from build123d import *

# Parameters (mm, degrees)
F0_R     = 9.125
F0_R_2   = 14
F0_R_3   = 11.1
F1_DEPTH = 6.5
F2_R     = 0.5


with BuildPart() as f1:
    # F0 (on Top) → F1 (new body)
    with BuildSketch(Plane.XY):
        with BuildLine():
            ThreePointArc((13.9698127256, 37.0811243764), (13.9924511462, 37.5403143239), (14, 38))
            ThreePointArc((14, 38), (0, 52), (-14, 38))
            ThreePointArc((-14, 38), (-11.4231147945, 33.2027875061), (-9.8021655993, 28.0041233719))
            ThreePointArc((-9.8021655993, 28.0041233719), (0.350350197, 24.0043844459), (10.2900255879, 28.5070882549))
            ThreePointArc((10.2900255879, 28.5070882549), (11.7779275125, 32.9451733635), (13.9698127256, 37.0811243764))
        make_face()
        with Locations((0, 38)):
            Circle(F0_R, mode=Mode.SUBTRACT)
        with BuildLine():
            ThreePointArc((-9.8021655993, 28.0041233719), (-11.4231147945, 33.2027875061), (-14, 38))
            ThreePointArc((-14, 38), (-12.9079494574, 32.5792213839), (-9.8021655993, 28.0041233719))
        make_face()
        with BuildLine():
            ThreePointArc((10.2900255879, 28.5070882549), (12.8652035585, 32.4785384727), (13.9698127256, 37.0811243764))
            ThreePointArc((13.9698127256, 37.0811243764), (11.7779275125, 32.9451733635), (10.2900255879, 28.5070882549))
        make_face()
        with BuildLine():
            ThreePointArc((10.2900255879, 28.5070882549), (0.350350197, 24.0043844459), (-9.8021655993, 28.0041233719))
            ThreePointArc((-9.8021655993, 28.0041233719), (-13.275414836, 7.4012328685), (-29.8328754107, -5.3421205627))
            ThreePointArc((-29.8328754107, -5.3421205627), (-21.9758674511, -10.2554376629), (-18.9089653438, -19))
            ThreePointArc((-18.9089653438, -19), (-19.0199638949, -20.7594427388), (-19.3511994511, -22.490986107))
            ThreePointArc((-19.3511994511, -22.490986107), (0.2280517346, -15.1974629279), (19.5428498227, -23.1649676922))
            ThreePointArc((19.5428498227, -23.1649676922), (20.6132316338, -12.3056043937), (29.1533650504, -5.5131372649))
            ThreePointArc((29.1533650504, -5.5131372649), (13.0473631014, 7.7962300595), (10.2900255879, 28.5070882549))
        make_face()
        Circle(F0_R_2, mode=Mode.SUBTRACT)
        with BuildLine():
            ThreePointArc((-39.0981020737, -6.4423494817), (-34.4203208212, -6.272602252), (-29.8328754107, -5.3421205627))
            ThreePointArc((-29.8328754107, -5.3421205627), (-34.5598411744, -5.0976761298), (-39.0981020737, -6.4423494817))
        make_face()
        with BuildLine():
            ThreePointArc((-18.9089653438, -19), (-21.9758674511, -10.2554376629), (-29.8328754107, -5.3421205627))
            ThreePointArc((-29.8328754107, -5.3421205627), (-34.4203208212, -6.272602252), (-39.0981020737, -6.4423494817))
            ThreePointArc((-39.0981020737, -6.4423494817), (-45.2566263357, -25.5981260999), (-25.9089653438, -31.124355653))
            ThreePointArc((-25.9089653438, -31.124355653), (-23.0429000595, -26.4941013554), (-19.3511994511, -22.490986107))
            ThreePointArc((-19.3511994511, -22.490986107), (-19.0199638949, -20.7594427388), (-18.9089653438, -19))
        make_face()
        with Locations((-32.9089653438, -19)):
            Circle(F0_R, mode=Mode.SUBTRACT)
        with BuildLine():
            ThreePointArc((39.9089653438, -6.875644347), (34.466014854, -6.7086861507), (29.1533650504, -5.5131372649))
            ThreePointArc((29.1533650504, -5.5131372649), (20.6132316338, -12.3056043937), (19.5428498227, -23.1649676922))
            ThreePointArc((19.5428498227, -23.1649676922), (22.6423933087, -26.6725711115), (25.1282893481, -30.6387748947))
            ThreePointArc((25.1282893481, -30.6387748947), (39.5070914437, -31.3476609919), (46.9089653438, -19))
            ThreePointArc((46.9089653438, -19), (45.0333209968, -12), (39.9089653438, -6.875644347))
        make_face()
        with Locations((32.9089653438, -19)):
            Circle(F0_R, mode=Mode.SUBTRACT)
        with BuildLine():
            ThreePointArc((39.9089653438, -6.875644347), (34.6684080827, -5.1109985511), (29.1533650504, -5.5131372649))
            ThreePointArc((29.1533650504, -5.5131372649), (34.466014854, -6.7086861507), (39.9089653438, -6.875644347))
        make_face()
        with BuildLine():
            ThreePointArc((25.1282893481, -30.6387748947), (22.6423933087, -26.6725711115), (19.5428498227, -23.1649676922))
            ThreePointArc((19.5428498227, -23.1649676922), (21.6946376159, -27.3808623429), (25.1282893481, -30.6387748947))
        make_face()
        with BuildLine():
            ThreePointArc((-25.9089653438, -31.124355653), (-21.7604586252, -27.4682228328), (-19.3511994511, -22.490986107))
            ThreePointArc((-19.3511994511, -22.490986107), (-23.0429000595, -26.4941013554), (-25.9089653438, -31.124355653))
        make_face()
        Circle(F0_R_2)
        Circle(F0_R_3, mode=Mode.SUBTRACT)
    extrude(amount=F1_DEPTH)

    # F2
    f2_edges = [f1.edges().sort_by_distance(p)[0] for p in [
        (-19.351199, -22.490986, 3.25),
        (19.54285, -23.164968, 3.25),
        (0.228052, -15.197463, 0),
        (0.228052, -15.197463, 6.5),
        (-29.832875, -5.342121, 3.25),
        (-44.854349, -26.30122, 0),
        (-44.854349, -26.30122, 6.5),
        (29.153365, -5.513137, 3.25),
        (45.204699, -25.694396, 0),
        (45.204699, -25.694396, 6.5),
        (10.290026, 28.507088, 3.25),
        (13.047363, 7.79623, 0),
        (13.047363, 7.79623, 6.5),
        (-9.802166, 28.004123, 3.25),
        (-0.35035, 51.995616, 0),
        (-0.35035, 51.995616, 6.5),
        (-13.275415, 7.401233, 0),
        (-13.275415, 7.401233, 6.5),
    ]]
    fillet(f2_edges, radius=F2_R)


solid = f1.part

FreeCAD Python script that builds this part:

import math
import FreeCAD as App
import Part
import Sketcher

V = App.Vector


def edges_at(feature, points):
    """Names of the edges that pass closest to the given points."""
    edges = feature.Shape.Edges
    near = lambda p: min(range(len(edges)), key=lambda i: edges[i].distToShape(Part.Vertex(*p))[0])
    return sorted({f"Edge{near(p) + 1}" for p in points})

doc = App.newDocument("Part")
params = doc.addObject("Spreadsheet::Sheet", "Params")
for row, (alias, value) in enumerate([
    ("sketch1_radius", "14 mm"),
    ("sketch1_diameter", "22.2 mm"),
    ("sketch1_diameter2", "18.25 mm"),
    ("pad1_length", "6.5 mm"),
    ("fillet_radius", "0.5 mm"),
], start=1):
    params.set(f"A{row}", alias)
    params.set(f"B{row}", "=" + value)
    params.setAlias(f"B{row}", alias)

body = doc.addObject("PartDesign::Body", "Body")

sketch1 = doc.addObject("Sketcher::SketchObject", "Sketch")
body.addObject(sketch1)
sketch1.AttachmentSupport = (doc.XY_Plane, [""])
sketch1.MapMode = "FlatFace"
sketch1.addGeometry(Part.ArcOfCircle(Part.Circle(V(0, 38, 0), V(0, 0, 1), 14), math.radians(-3.76), math.radians(0)), False)
sketch1.addGeometry(Part.ArcOfCircle(Part.Circle(V(0, 38, 0), V(0, 0, 1), 14), math.radians(0), math.radians(180)), False)
sketch1.addGeometry(Part.ArcOfCircle(Part.Circle(V(0, 38, 0), V(0, 0, 1), 14), math.radians(180), math.radians(226)), False)
sketch1.addGeometry(Part.ArcOfCircle(Part.Circle(V(-37.8, 22.1, 0), V(0, 0, 1), 28.6), math.radians(-74), math.radians(12)), False)
sketch1.addGeometry(Part.ArcOfCircle(Part.Circle(V(-32.9, -19, 0), V(0, 0, 1), 14), math.radians(77), math.radians(116)), False)
sketch1.addGeometry(Part.ArcOfCircle(Part.Circle(V(-32.9, -19, 0), V(0, 0, 1), 14), math.radians(116), math.radians(300)), False)
sketch1.addGeometry(Part.ArcOfCircle(Part.Circle(V(-32.9, -19, 0), V(0, 0, 1), 14), math.radians(-60), math.radians(-14)), False)
sketch1.addGeometry(Part.ArcOfCircle(Part.Circle(V(-0.3, -43.8, 0), V(0, 0, 1), 28.6), math.radians(46), math.radians(132)), False)
sketch1.addGeometry(Part.ArcOfCircle(Part.Circle(V(32.9, -19, 0), V(0, 0, 1), 14), math.radians(-163), math.radians(0)), False)
sketch1.addGeometry(Part.ArcOfCircle(Part.Circle(V(32.9, -19, 0), V(0, 0, 1), 14), math.radians(0), math.radians(60)), False)
sketch1.addGeometry(Part.ArcOfCircle(Part.Circle(V(32.9, -19, 0), V(0, 0, 1), 14), math.radians(60), math.radians(106)), False)
sketch1.addGeometry(Part.ArcOfCircle(Part.Circle(V(38.1, 21.7, 0), V(0, 0, 1), 28.6), math.radians(166), math.radians(252)), False)
sketch1.addGeometry(Part.ArcOfCircle(Part.Circle(V(0, 38, 0), V(0, 0, 1), 14), math.radians(-43), math.radians(-4)), False)
sketch1.addGeometry(Part.Circle(V(-32.9, -19, 0), V(0, 0, 1), 9.1), False)
sketch1.addGeometry(Part.Circle(V(0, 0, 0), V(0, 0, 1), 11.1), False)
sketch1.addGeometry(Part.Circle(V(32.9, -19, 0), V(0, 0, 1), 9.1), False)
sketch1.addGeometry(Part.Circle(V(0, 38, 0), V(0, 0, 1), 9.1), False)
sketch1.addConstraint(Sketcher.Constraint("Tangent", 0, 2, 1, 1))
sketch1.addConstraint(Sketcher.Constraint("Tangent", 1, 2, 2, 1))
sketch1.addConstraint(Sketcher.Constraint("Coincident", 2, 2, 3, 2))
sketch1.addConstraint(Sketcher.Constraint("Coincident", 3, 1, 4, 1))
sketch1.addConstraint(Sketcher.Constraint("Tangent", 4, 2, 5, 1))
sketch1.addConstraint(Sketcher.Constraint("Tangent", 5, 2, 6, 1))
sketch1.addConstraint(Sketcher.Constraint("Coincident", 6, 2, 7, 2))
sketch1.addConstraint(Sketcher.Constraint("Coincident", 7, 1, 8, 1))
sketch1.addConstraint(Sketcher.Constraint("Tangent", 8, 2, 9, 1))
sketch1.addConstraint(Sketcher.Constraint("Tangent", 9, 2, 10, 1))
sketch1.addConstraint(Sketcher.Constraint("Coincident", 10, 2, 11, 2))
sketch1.addConstraint(Sketcher.Constraint("Coincident", 11, 1, 12, 1))
sketch1.addConstraint(Sketcher.Constraint("Tangent", 12, 2, 0, 1))
sketch1.addConstraint(Sketcher.Constraint("Coincident", 14, 3, -1, 1))
sketch1.addConstraint(Sketcher.Constraint("Coincident", 6, 3, 4, 3))
sketch1.addConstraint(Sketcher.Constraint("Coincident", 10, 3, 8, 3))
sketch1.addConstraint(Sketcher.Constraint("Coincident", 13, 3, 4, 3))
sketch1.addConstraint(Sketcher.Constraint("Coincident", 15, 3, 8, 3))
sketch1.addConstraint(Sketcher.Constraint("Coincident", 16, 3, 0, 3))
sketch1.addConstraint(Sketcher.Constraint("Equal", 0, 1))
sketch1.addConstraint(Sketcher.Constraint("Equal", 1, 2))
sketch1.addConstraint(Sketcher.Constraint("Equal", 2, 4))
sketch1.addConstraint(Sketcher.Constraint("Equal", 3, 7))
sketch1.addConstraint(Sketcher.Constraint("Equal", 6, 8))
sketch1.addConstraint(Sketcher.Constraint("Equal", 7, 11))
sketch1.addConstraint(Sketcher.Constraint("Equal", 10, 12))
sketch1.addConstraint(Sketcher.Constraint("Equal", 13, 15))
sketch1.addConstraint(Sketcher.Constraint("Equal", 15, 16))
sketch1.addConstraint(Sketcher.Constraint("Symmetric", 4, 3, 8, 3, -2))
sketch1.addConstraint(Sketcher.Constraint("Symmetric", 0, 2, 1, 2, -2))
sketch1.addConstraint(Sketcher.Constraint("Horizontal", 16, 3, 0, 2))
sketch1.addConstraint(Sketcher.Constraint("Horizontal", 15, 3, 8, 2))
sketch1.addConstraint(Sketcher.Constraint("Radius", 0, 14.0))
sketch1.addConstraint(Sketcher.Constraint("Diameter", 14, 22.2))
sketch1.addConstraint(Sketcher.Constraint("Diameter", 13, 18.25))
sketch1.addConstraint(Sketcher.Constraint("DistanceY", -1, 1, 0, 3, 38.0))
sketch1.addConstraint(Sketcher.Constraint("DistanceY", 4, 3, -1, 1, 19.0))
sketch1.addConstraint(Sketcher.Constraint("DistanceX", 4, 3, 5, 2, 7.0))
sketch1.addConstraint(Sketcher.Constraint("DistanceX", 8, 3, 9, 2, 7.0))
sketch1.addConstraint(Sketcher.Constraint("Radius", 3, 28.600762))
sketch1.addConstraint(Sketcher.Constraint("DistanceX", -1, 1, 11, 3, 38.060401))
sketch1.addConstraint(Sketcher.Constraint("DistanceX", 6, 2, -1, 1, 19.351199))
sketch1.addConstraint(Sketcher.Constraint("DistanceX", 10, 2, 9, 2, 10.7556))
sketch1.addConstraint(Sketcher.Constraint("DistanceY", 7, 3, -1, 1, 43.793932))
sketch1.addConstraint(Sketcher.Constraint("DistanceY", 3, 1, -1, 1, 5.342121))
sketch1.addConstraint(Sketcher.Constraint("DistanceY", 4, 2, -1, 1, 6.442349))
sketch1.addConstraint(Sketcher.Constraint("DistanceX", -1, 1, 7, 1, 19.54285))
sketch1.addConstraint(Sketcher.Constraint("DistanceX", 3, 3, 4, 3, 4.883949))
sketch1.addConstraint(Sketcher.Constraint("DistanceX", -1, 1, 12, 2, 13.969813))
sketch1.setExpression("Constraints[32]", "Params.sketch1_radius")
sketch1.setExpression("Constraints[33]", "Params.sketch1_diameter")
sketch1.setExpression("Constraints[34]", "Params.sketch1_diameter2")
pad1 = doc.addObject("PartDesign::Pad", "Pad")
body.addObject(pad1)
pad1.Profile = sketch1
pad1.setExpression("Length", "Params.pad1_length")
doc.recompute()

fillet = doc.addObject("PartDesign::Fillet", "Fillet")
body.addObject(fillet)
fillet.Base = (pad1, edges_at(pad1, [
    (-19.351, -22.491, 3.25),
    (19.543, -23.165, 3.25),
    (0.228, -15.197, 0),
    (0.228, -15.197, 6.5),
    (-29.833, -5.342, 3.25),
    (-45.257, -25.598, 0),
    (-45.257, -25.598, 6.5),
    (29.153, -5.513, 3.25),
    (35.015, -32.841, 0),
    (35.015, -32.841, 6.5),
    (10.29, 28.507, 3.25),
    (13.047, 7.796, 0),
    (13.047, 7.796, 6.5),
    (-9.802, 28.004, 3.25),
    (0, 52, 0),
    (0, 52, 6.5),
    (-13.275, 7.401, 0),
    (-13.275, 7.401, 6.5),
]))
fillet.setExpression("Radius", "Params.fillet_radius")

doc.recompute()
